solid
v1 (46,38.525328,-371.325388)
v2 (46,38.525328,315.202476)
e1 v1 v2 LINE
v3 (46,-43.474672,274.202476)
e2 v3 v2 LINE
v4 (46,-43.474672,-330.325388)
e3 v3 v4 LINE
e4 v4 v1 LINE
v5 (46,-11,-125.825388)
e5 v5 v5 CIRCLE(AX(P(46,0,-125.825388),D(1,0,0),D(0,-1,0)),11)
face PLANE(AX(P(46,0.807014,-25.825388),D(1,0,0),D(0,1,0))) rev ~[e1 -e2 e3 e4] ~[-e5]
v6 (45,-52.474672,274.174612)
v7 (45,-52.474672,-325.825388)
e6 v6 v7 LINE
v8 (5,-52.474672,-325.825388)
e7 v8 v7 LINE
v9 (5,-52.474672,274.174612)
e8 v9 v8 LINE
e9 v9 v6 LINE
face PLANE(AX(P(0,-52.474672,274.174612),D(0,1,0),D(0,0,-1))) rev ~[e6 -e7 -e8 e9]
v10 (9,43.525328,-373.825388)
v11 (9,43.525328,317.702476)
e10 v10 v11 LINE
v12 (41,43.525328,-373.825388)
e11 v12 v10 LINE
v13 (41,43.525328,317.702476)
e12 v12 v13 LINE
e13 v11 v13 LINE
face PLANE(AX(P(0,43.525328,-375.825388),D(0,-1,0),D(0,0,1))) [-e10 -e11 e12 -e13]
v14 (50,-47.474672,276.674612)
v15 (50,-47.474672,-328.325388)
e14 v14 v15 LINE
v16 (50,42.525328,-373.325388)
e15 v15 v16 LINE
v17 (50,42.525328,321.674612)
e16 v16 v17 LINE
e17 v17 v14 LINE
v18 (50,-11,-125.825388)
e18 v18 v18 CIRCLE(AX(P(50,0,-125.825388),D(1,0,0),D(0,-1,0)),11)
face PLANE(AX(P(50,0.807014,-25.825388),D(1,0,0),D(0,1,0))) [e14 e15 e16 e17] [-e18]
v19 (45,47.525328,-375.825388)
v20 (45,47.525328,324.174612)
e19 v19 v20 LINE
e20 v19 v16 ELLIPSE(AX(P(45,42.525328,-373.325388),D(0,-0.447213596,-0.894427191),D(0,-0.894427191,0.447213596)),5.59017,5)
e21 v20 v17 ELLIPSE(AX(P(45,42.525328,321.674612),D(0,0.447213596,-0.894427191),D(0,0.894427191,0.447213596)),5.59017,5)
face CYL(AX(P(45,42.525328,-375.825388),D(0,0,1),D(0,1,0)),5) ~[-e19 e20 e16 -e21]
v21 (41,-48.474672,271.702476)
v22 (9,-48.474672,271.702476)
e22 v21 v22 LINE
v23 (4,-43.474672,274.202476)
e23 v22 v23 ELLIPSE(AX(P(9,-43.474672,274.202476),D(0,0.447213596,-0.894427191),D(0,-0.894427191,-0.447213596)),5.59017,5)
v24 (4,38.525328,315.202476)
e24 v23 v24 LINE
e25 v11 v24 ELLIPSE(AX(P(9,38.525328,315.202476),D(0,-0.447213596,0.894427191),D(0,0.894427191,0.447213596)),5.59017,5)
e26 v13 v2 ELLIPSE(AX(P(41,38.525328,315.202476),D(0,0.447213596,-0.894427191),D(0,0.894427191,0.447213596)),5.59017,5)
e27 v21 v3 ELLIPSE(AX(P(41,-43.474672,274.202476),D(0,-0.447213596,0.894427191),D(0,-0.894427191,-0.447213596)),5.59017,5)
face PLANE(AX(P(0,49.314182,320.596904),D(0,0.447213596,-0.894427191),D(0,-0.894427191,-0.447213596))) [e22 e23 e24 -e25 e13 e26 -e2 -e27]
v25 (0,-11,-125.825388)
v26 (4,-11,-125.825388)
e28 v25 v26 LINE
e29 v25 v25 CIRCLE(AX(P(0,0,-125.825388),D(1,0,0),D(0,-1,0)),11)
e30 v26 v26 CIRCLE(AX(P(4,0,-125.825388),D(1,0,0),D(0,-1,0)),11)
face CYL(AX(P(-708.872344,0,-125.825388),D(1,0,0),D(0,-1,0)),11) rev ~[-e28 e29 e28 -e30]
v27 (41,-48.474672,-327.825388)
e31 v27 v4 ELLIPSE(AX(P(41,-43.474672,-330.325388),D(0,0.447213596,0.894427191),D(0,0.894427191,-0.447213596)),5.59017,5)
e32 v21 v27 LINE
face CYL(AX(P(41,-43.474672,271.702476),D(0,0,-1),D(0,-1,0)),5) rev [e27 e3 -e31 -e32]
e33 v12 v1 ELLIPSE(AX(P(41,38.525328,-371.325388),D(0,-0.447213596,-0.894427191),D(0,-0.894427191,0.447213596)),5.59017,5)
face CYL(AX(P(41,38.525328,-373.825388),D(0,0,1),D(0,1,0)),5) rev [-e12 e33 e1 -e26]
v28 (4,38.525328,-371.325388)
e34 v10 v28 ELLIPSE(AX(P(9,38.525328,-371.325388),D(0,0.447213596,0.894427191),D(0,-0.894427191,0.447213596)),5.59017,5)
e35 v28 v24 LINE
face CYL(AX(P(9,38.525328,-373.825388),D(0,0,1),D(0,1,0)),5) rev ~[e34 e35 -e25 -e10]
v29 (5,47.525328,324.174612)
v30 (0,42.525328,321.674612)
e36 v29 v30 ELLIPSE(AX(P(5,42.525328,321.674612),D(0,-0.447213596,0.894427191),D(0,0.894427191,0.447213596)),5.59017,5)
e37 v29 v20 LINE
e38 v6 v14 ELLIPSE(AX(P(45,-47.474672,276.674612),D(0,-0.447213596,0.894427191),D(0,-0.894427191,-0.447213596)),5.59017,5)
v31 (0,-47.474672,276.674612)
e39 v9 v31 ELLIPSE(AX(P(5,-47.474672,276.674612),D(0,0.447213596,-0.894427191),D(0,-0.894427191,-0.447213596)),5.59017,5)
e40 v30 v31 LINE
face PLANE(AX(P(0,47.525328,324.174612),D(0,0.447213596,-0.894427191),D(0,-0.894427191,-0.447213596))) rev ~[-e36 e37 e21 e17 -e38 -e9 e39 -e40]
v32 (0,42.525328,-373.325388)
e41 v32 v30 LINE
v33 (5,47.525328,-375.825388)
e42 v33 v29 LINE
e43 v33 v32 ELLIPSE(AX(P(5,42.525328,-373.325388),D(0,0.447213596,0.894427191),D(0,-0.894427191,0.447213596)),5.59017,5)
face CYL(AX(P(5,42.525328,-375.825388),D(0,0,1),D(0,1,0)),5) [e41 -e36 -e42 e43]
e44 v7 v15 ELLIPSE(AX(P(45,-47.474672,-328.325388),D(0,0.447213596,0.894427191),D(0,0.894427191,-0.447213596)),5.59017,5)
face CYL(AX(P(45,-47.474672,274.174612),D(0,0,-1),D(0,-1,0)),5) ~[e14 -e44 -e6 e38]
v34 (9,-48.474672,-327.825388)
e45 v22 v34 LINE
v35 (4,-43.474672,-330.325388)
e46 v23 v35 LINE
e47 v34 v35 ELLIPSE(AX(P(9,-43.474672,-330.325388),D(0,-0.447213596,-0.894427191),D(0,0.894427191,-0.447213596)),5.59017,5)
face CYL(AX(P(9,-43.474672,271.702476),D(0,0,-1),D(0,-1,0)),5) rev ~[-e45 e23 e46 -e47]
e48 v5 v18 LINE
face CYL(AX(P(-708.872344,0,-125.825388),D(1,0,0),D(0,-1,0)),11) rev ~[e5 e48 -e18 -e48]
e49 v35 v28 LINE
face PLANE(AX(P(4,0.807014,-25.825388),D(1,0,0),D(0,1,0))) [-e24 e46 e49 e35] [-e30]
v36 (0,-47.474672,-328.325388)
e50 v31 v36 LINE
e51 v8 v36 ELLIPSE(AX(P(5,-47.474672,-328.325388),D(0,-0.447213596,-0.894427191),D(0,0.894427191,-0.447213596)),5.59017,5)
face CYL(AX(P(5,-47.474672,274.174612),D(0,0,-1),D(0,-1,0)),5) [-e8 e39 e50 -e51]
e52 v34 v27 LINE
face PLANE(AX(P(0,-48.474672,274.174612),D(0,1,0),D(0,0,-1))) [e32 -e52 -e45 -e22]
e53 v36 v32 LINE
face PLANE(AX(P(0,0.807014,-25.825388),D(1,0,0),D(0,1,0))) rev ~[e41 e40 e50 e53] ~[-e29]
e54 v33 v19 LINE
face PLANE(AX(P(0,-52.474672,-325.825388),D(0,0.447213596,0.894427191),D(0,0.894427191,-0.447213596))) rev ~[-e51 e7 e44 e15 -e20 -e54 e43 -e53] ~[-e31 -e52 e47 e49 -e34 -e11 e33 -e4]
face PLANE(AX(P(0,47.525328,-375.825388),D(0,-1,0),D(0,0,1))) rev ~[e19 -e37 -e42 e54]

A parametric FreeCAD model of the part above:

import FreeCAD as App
import Part
import Sketcher
from FreeCAD import Vector


def edges_at(feature, points):
    """Names of the edges that pass closest to the given points."""
    edges = feature.Shape.Edges
    near = lambda p: min(range(len(edges)), key=lambda i: edges[i].distToShape(Part.Vertex(*p))[0])
    return sorted({f"Edge{near(p) + 1}" for p in points})


def faces_at(feature, points):
    """Names of the faces that lie closest to the given points."""
    faces = feature.Shape.Faces
    near = lambda p: min(range(len(faces)), key=lambda i: faces[i].distToShape(Part.Vertex(*p))[0])
    return sorted({f"Face{near(p) + 1}" for p in points})


def add_polygon(sketch, points):
    """Adds a closed chain of lines whose ends are joined by coincident constraints."""
    first, n = sketch.GeometryCount, len(points)
    for a, b in zip(points, points[1:] + points[:1]):
        sketch.addGeometry(Part.LineSegment(App.Vector(*a, 0), App.Vector(*b, 0)), False)
    for i in range(n):
        sketch.addConstraint(Sketcher.Constraint("Coincident", first + i, 2, first + (i + 1) % n, 1))

doc = App.newDocument("Part")
body = doc.addObject("PartDesign::Body", "Body")

# Sketch on YZ plane
sketch1 = body.newObject("Sketcher::SketchObject", "Sketch")
sketch1.AttachmentSupport = (doc.getObject("YZ_Plane"), [""])
sketch1.MapMode = "FlatFace"
add_polygon(sketch1, [(-52.474672, 274.174612), (-52.474672, -325.825388), (47.525328, -375.825388), (47.525328, 324.174612)])  # lines 0-3
sketch1.addConstraint([
    Sketcher.Constraint("Vertical", 0),
    Sketcher.Constraint("Vertical", 2),
    Sketcher.Constraint("Equal", 1, 3),
    Sketcher.Constraint("DistanceY", 0, 2, 0, 1, 600.0),
    Sketcher.Constraint("DistanceY", 2, 1, 2, 2, 700.0),
    Sketcher.Constraint("DistanceX", 0, 2, 1, 2, 100.0),
    Sketcher.Constraint("DistanceX", 0, 2, -1, 1, 52.474672),
    Sketcher.Constraint("DistanceY", 0, 2, -1, 1, 325.825388),
])
pad1 = body.newObject("PartDesign::Pad", "Pad")
pad1.Profile = sketch1
pad1.Length = 50
doc.recompute()

thickness = body.newObject("PartDesign::Thickness", "Thickness")
thickness.Base = (pad1, faces_at(pad1, [(25, -2.475, -350.825)]))
thickness.Value = 4
thickness.Reversed = True
thickness.Join = "Arc"
doc.recompute()

fillet = body.newObject("PartDesign::Fillet", "Fillet")
fillet.Base = (thickness, edges_at(thickness, [
    (50, -52.475, -25.825),
    (50, 47.525, -25.825),
    (0, 47.525, -25.825),
    (0, -52.475, -25.825),
    (4, -48.475, -28.061),
    (4, 43.525, -28.061),
    (46, 43.525, -28.061),
    (46, -48.475, -28.061),
]))
fillet.Radius = 5

# Sketch on YZ plane
sketch2 = body.newObject("Sketcher::SketchObject", "Sketch001")
sketch2.AttachmentSupport = (doc.getObject("YZ_Plane"), [""])
sketch2.MapMode = "FlatFace"
sketch2.addGeometry(Part.Circle(Vector(0, -125.825388, 0), Vector(0, 0, 1), 11), False)
sketch2.addConstraint([
    Sketcher.Constraint("PointOnObject", 0, 3, -2),
    Sketcher.Constraint("Diameter", 0, 22.0),
    Sketcher.Constraint("DistanceY", 0, 3, -1, 1, 125.825388),
])
doc.recompute()
hole = body.newObject("PartDesign::Hole", "Hole")
hole.Profile = sketch2
hole.ThreadType = "None"
hole.Diameter = 22
hole.DepthType = "ThroughAll"
hole.Reversed = True

doc.recompute()
